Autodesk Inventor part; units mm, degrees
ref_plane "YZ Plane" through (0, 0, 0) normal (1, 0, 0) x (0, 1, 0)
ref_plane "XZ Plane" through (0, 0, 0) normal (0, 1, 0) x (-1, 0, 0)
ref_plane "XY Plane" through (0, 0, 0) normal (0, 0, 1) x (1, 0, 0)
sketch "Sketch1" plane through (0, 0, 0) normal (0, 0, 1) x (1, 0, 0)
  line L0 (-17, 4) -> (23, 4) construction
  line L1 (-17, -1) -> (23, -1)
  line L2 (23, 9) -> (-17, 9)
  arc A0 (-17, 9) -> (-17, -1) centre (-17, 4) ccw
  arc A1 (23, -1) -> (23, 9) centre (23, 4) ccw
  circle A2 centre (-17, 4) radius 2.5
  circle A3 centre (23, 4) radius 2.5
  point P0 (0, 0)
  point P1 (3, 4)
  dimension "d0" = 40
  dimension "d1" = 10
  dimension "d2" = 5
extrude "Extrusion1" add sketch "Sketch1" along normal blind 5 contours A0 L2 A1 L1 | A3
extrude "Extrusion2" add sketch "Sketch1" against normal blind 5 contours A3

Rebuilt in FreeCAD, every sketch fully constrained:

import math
import FreeCAD as App
import Part
import Sketcher

V = App.Vector

doc = App.newDocument("Part")
body = doc.addObject("PartDesign::Body", "Body")

# Sketch on XY plane
sketch1 = body.newObject("Sketcher::SketchObject", "Sketch")
sketch1.AttachmentSupport = (doc.getObject("XY_Plane"), [""])
sketch1.MapMode = "FlatFace"
sketch1.addGeometry([
    Part.ArcOfCircle(Part.Circle(V(-17, 4, 0), V(0, 0, 1), 5), math.radians(90), math.radians(270)),  # 0
    Part.LineSegment(V(-17, -1, 0), V(23, -1, 0)),  # 1
    Part.ArcOfCircle(Part.Circle(V(23, 4, 0), V(0, 0, 1), 5), math.radians(-90), math.radians(90)),  # 2
    Part.LineSegment(V(23, 9, 0), V(-17, 9, 0)),  # 3
    Part.Circle(V(-17, 4, 0), V(0, 0, 1), 2.5),  # 4
], False)
sketch1.addConstraint([
    Sketcher.Constraint("Tangent", 0, 2, 1, 1),
    Sketcher.Constraint("Tangent", 1, 2, 2, 1),
    Sketcher.Constraint("Tangent", 2, 2, 3, 1),
    Sketcher.Constraint("Tangent", 3, 2, 0, 1),
    Sketcher.Constraint("Horizontal", 1),
    Sketcher.Constraint("Horizontal", 3),
    Sketcher.Constraint("Coincident", 4, 3, 0, 3),
    Sketcher.Constraint("Diameter", 4, 5.0),
    Sketcher.Constraint("Radius", 0, 5.0),
    Sketcher.Constraint("DistanceX", 1, 1, 1, 2, 40.0),
    Sketcher.Constraint("DistanceX", 0, 3, -1, 1, 17.0),
    Sketcher.Constraint("DistanceY", -1, 1, 0, 3, 4.0),
])
pad1 = body.newObject("PartDesign::Pad", "Pad")
pad1.Profile = sketch1
pad1.Length = 5

# Sketch on XY plane
sketch2 = body.newObject("Sketcher::SketchObject", "Sketch001")
sketch2.AttachmentSupport = (doc.getObject("XY_Plane"), [""])
sketch2.MapMode = "FlatFace"
sketch2.addGeometry(Part.Circle(V(23, 4, 0), V(0, 0, 1), 2.5), False)
sketch2.addConstraint([
    Sketcher.Constraint("Diameter", 0, 5.0),
    Sketcher.Constraint("DistanceX", -1, 1, 0, 3, 23.0),
    Sketcher.Constraint("DistanceY", -1, 1, 0, 3, 4.0),
])
pad2 = body.newObject("PartDesign::Pad", "Pad001")
pad2.Profile = sketch2
pad2.Length = 5
pad2.Reversed = True

doc.recompute()
